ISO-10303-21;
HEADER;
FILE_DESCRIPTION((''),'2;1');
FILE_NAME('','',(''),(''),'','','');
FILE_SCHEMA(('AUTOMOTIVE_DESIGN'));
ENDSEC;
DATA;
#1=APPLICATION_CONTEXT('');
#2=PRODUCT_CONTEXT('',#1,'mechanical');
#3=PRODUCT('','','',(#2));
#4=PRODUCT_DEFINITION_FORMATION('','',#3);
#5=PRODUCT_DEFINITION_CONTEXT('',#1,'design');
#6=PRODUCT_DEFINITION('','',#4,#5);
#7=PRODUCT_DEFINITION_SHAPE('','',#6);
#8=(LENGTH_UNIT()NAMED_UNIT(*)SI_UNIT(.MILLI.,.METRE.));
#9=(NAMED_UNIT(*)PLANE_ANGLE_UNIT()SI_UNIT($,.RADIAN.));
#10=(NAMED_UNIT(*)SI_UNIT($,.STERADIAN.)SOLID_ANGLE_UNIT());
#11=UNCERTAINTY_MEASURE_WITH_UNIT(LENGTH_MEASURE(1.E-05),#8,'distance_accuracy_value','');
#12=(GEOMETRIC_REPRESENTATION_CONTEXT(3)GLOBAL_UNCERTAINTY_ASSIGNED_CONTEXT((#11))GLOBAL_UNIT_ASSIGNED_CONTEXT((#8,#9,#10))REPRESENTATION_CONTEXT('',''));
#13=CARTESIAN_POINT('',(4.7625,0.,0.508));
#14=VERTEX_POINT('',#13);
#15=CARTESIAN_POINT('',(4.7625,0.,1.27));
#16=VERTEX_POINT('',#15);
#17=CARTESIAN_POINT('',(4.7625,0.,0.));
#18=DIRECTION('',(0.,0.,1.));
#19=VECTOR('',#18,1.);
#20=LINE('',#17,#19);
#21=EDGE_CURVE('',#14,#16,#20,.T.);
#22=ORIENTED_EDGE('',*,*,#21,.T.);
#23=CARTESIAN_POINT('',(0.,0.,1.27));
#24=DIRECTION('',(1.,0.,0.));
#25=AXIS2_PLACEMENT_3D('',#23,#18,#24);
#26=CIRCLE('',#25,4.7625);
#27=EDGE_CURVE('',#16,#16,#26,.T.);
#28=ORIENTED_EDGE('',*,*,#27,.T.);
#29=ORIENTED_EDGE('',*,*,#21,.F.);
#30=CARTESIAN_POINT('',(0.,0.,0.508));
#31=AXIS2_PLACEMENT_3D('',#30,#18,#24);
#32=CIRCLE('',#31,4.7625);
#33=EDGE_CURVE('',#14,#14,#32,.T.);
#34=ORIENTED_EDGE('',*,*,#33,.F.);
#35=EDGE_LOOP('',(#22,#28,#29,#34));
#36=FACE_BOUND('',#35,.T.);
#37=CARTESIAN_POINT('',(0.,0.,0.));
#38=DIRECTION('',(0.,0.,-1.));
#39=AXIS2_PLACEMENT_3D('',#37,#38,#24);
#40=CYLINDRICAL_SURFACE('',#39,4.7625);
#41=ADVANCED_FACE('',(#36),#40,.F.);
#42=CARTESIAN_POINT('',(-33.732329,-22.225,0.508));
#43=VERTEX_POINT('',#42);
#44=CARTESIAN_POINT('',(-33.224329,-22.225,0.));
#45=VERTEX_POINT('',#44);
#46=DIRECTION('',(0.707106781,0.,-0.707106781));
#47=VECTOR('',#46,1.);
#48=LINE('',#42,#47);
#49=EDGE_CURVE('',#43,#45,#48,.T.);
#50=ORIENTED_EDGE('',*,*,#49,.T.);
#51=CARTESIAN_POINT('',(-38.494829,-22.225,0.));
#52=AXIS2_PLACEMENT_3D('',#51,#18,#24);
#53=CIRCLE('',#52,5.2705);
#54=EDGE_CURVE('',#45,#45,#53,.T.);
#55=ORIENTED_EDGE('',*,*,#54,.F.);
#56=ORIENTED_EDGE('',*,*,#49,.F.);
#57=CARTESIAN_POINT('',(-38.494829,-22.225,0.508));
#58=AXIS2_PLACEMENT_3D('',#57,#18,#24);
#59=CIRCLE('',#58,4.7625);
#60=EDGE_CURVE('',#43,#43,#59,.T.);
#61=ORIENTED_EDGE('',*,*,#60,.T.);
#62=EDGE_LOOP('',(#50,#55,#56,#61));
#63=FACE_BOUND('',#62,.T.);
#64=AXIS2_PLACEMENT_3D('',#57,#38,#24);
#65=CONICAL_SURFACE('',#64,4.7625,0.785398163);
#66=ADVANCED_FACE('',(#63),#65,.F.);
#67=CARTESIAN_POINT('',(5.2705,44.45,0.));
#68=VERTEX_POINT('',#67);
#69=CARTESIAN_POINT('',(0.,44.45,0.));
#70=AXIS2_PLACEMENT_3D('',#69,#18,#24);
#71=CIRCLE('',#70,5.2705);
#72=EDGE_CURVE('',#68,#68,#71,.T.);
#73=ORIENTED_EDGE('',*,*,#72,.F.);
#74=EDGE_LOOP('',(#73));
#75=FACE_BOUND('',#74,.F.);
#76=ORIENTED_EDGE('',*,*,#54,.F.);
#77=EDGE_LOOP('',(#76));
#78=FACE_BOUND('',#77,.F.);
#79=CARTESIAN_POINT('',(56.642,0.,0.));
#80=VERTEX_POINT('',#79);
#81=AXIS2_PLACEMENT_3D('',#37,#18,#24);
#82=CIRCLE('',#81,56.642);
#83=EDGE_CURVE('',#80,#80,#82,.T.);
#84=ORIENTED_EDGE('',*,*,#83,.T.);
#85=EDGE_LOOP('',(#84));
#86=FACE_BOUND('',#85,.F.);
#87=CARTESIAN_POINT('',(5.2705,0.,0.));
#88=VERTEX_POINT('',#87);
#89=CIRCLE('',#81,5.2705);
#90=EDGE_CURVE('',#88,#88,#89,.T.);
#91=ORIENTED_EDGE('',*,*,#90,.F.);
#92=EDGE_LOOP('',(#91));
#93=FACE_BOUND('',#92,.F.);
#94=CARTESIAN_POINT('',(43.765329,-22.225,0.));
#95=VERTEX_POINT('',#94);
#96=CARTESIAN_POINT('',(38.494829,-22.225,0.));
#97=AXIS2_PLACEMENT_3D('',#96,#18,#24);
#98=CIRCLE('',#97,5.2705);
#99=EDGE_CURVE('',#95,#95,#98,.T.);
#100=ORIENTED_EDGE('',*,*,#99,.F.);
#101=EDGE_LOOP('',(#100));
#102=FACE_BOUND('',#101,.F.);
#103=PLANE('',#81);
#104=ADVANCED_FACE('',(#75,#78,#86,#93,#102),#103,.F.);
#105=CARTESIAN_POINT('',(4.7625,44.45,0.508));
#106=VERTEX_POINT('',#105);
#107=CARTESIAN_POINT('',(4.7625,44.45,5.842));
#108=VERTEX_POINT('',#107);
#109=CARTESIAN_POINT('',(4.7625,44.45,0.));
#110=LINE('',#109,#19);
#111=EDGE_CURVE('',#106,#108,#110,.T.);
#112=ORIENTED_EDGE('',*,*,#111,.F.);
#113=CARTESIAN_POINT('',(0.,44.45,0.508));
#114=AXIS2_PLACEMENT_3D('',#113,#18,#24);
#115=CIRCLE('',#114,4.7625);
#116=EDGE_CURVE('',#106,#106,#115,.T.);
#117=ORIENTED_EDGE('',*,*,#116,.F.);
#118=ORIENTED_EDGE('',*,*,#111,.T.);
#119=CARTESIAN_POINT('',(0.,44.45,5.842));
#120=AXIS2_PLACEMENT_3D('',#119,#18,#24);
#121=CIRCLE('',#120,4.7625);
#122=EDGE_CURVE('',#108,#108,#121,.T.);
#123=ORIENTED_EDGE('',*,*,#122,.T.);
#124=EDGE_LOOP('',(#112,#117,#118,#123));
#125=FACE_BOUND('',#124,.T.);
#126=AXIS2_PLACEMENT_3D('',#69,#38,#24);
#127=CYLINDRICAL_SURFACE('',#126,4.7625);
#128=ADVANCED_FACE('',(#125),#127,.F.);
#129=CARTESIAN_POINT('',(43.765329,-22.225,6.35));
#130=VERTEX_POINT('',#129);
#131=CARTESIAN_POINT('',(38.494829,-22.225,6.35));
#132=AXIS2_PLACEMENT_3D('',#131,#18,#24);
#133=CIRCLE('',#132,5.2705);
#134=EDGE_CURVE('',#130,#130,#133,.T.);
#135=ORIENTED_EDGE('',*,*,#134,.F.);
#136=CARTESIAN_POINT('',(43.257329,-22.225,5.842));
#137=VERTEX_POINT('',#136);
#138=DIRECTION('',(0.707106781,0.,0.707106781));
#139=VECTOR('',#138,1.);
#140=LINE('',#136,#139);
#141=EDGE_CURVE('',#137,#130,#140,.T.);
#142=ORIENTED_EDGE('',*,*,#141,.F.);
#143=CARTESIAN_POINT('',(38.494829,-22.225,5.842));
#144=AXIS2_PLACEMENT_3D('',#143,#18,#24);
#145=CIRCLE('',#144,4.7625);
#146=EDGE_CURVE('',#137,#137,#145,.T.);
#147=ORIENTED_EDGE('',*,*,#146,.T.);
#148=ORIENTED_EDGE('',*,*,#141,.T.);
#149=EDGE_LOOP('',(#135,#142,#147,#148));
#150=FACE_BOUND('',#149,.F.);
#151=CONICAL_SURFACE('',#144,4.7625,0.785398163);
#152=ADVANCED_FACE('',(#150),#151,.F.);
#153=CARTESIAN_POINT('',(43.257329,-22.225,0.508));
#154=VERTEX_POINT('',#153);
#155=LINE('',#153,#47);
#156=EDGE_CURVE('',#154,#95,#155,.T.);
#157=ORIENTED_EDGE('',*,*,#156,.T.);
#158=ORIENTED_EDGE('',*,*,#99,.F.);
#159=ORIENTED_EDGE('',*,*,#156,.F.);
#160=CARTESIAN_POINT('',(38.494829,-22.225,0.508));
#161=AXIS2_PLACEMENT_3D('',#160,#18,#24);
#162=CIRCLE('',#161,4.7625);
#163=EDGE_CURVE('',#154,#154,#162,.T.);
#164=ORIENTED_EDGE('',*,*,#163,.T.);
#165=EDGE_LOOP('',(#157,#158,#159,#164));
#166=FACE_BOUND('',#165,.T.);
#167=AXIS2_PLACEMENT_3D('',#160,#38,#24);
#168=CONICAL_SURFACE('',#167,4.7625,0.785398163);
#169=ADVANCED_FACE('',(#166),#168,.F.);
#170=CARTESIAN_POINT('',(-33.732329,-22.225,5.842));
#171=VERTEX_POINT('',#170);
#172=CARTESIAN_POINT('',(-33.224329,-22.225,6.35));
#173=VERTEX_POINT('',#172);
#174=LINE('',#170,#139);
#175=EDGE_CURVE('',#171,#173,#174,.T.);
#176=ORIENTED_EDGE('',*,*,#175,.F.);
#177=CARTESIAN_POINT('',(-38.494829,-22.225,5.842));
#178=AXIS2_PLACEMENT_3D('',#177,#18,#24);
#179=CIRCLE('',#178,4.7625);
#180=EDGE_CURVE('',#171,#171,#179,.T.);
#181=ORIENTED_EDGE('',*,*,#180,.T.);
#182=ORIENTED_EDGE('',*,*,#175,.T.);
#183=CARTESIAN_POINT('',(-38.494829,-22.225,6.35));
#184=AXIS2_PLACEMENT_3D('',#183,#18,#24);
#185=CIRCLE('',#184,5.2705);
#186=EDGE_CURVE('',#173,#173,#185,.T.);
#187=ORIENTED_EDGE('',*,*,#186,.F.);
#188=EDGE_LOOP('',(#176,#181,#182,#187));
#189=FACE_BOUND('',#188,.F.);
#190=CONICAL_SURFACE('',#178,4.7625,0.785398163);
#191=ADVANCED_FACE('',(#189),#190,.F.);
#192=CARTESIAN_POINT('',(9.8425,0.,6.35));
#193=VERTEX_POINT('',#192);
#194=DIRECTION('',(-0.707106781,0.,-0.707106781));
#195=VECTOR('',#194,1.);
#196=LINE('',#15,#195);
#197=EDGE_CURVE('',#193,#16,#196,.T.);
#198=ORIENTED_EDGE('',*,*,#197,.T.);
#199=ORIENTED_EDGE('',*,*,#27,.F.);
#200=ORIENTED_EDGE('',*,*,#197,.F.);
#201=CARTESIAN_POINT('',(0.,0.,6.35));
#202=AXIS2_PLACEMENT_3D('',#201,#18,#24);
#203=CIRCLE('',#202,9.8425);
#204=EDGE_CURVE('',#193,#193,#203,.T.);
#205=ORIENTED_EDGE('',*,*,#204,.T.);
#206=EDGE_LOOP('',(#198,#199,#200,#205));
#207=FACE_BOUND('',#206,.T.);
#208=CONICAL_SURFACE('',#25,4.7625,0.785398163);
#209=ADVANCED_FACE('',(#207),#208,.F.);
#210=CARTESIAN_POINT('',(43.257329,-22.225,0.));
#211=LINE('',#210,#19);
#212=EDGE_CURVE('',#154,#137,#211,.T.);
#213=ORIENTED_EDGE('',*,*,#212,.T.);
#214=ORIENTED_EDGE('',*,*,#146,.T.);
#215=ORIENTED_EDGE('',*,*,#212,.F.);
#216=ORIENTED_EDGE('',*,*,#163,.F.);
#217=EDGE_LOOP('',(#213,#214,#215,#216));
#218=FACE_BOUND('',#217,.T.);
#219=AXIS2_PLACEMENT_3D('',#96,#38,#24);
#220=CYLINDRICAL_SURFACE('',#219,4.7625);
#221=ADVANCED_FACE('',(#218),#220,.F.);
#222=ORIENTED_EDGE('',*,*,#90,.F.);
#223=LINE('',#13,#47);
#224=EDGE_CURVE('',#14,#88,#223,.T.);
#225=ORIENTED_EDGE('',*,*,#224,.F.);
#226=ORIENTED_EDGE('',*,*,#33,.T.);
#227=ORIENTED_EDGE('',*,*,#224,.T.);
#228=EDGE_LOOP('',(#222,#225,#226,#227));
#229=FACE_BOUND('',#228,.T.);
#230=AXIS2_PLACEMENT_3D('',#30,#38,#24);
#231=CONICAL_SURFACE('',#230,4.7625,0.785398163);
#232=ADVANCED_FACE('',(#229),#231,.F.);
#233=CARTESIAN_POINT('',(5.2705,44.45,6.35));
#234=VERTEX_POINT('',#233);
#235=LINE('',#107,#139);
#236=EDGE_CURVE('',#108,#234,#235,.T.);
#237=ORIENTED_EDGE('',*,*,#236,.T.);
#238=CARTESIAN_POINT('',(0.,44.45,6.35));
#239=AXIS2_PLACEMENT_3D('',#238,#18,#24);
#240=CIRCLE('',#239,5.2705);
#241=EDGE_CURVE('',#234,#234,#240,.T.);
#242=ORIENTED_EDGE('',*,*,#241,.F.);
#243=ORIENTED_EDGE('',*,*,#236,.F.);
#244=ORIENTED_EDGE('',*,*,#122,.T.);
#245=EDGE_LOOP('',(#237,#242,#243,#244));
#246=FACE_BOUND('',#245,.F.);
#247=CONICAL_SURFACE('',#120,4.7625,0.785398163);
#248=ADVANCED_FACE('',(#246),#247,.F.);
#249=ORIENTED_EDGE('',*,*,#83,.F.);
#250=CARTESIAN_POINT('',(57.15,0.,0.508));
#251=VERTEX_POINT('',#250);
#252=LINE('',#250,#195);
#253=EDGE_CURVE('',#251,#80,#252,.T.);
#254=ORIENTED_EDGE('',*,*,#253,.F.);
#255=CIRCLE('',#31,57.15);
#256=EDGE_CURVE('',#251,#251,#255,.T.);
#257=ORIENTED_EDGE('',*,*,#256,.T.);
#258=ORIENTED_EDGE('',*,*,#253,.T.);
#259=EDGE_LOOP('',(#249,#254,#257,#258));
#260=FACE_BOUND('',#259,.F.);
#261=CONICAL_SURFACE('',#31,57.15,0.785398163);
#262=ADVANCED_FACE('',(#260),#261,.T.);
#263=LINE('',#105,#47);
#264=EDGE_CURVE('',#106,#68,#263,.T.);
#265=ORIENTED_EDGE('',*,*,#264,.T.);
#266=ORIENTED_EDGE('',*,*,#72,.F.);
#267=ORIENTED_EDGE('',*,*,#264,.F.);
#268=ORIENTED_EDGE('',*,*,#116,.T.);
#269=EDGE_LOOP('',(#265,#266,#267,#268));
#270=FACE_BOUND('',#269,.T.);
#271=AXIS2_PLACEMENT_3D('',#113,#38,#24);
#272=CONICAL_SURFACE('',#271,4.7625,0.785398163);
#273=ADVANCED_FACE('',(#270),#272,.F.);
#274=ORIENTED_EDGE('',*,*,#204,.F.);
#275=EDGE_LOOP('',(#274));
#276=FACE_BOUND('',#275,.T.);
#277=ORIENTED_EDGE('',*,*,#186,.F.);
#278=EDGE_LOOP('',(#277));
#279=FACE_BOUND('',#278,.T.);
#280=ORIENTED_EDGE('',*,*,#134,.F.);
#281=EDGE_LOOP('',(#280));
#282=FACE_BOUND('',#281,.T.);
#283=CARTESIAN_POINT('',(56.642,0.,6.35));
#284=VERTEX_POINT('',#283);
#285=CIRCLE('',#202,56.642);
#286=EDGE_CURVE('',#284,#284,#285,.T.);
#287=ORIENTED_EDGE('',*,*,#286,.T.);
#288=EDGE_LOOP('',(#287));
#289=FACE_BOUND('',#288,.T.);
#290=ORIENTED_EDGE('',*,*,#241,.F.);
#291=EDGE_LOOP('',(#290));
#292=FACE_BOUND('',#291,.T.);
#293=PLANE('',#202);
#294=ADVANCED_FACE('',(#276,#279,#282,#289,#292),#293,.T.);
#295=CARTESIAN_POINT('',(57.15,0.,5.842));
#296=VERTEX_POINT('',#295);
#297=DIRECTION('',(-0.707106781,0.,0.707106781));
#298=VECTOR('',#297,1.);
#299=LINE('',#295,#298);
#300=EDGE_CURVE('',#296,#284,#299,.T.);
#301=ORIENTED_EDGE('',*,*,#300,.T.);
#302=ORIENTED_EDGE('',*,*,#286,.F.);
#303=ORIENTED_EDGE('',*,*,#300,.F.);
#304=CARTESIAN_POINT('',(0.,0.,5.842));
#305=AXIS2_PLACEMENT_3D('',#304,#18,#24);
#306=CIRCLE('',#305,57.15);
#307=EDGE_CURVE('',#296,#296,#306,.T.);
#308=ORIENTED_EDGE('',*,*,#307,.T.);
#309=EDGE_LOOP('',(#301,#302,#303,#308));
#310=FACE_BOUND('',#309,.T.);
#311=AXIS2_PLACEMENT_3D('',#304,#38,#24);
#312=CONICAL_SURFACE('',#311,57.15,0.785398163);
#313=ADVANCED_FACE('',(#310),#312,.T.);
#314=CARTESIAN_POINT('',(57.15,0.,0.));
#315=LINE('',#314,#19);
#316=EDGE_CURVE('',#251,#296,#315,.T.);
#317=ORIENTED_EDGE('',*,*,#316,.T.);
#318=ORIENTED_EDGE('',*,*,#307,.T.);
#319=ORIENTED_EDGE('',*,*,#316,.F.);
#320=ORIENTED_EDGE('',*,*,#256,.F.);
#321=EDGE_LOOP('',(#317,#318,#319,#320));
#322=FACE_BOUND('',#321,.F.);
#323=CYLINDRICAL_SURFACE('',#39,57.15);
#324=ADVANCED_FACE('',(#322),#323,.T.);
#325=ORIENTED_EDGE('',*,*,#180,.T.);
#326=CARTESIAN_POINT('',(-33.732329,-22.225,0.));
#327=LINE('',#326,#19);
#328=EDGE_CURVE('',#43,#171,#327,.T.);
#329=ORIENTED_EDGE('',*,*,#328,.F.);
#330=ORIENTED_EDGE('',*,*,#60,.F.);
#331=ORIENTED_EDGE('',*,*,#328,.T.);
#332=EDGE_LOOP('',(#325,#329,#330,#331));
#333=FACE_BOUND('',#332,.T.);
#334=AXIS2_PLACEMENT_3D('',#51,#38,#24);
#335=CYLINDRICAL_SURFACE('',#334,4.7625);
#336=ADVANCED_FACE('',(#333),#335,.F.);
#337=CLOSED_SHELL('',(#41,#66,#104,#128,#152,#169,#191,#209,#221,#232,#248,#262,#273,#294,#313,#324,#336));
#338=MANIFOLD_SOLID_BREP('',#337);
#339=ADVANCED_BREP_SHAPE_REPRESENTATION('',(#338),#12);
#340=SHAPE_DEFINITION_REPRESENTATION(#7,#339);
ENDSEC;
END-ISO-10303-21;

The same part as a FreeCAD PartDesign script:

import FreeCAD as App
import Part
import Sketcher
from FreeCAD import Vector
Q = App.Units.Quantity


def edges_at(feature, points):
    """Names of the edges that pass closest to the given points."""
    edges = feature.Shape.Edges
    near = lambda p: min(range(len(edges)), key=lambda i: edges[i].distToShape(Part.Vertex(*p))[0])
    return sorted({f"Edge{near(p) + 1}" for p in points})

doc = App.newDocument("Part")
body = doc.addObject("PartDesign::Body", "Body")

# Sketch on XY plane
sketch1 = body.newObject("Sketcher::SketchObject", "Sketch")
sketch1.AttachmentSupport = (doc.getObject("XY_Plane"), [""])
sketch1.MapMode = "FlatFace"
sketch1.addGeometry(Part.Circle(Vector(0, 0, 0), Vector(0, 0, 1), 57.1), False)
sketch1.addGeometry(Part.Circle(Vector(-38.5, -22.2, 0), Vector(0, 0, 1), 4.8), False)
sketch1.addGeometry(Part.Circle(Vector(38.5, -22.2, 0), Vector(0, 0, 1), 4.8), False)
sketch1.addGeometry(Part.Circle(Vector(0, 0, 0), Vector(0, 0, 1), 4.8), False)
sketch1.addGeometry(Part.Circle(Vector(0, 44.5, 0), Vector(0, 0, 1), 4.8), False)
sketch1.addConstraint(Sketcher.Constraint("Coincident", 0, 3, -1, 1))
sketch1.addConstraint(Sketcher.Constraint("Coincident", 3, 3, -1, 1))
sketch1.addConstraint(Sketcher.Constraint("Equal", 1, 2))
sketch1.addConstraint(Sketcher.Constraint("Equal", 2, 3))
sketch1.addConstraint(Sketcher.Constraint("Equal", 3, 4))
sketch1.addConstraint(Sketcher.Constraint("Symmetric", 1, 3, 2, 3, -2))
sketch1.addConstraint(Sketcher.Constraint("PointOnObject", 4, 3, -2))
sketch1.addConstraint(Sketcher.Constraint("Diameter", 0, Q("4.5 in")))
sketch1.addConstraint(Sketcher.Constraint("Diameter", 1, Q("0.375 in")))
sketch1.addConstraint(Sketcher.Constraint("DistanceY", -1, 1, 4, 3, Q("1.75 in")))
sketch1.addConstraint(Sketcher.Constraint("DistanceY", 1, 3, -1, 1, Q("0.875 in")))
sketch1.addConstraint(Sketcher.Constraint("DistanceX", 1, 3, -1, 1, 38.494829))
pad1 = body.newObject("PartDesign::Pad", "Pad")
pad1.Profile = sketch1
pad1.Length = Q("0.25 in")
doc.recompute()

chamfer = body.newObject("PartDesign::Chamfer", "Chamfer")
chamfer.Base = (pad1, edges_at(pad1, [
    (-57.15, 0, 6.35),
    (-4.763, 44.45, 6.35),
    (-43.257, -22.225, 6.35),
    (33.732, -22.225, 6.35),
    (-57.15, 0, 0),
    (-4.763, 44.45, 0),
    (33.732, -22.225, 0),
    (-43.257, -22.225, 0),
    (-4.763, 0, 0),
]))
chamfer.Size = Q("0.02 in")
doc.recompute()

chamfer2 = body.newObject("PartDesign::Chamfer", "Chamfer001")
chamfer2.Base = (chamfer, edges_at(chamfer, [(-4.763, 0, 6.35)]))
chamfer2.Size = Q("0.2 in")

doc.recompute()
